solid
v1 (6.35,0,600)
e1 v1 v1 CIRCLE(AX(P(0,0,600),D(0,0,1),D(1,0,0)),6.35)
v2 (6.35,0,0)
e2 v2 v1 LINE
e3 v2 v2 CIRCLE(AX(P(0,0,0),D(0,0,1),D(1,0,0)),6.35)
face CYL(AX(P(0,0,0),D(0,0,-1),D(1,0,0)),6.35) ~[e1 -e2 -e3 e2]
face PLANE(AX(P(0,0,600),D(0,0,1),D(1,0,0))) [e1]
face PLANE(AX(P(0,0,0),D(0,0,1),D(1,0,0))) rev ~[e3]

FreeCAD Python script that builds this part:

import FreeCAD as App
import Part
import Sketcher
from FreeCAD import Vector

doc = App.newDocument("Part")
body = doc.addObject("PartDesign::Body", "Body")

sketch1 = body.newObject("Sketcher::SketchObject", "Sketch")
sketch1.AttachmentSupport = (doc.getObject("XY_Plane"), [""])
sketch1.MapMode = "FlatFace"
sketch1.addGeometry(Part.Circle(Vector(0, 0, 0), Vector(0, 0, 1), 6), False)
sketch1.addConstraint(Sketcher.Constraint("Coincident", 0, 3, -1, 1))
sketch1.addConstraint(Sketcher.Constraint("Diameter", 0, 12.7))
pad1 = body.newObject("PartDesign::Pad", "Pad")
pad1.Profile = sketch1
pad1.Length = 600

doc.recompute()
